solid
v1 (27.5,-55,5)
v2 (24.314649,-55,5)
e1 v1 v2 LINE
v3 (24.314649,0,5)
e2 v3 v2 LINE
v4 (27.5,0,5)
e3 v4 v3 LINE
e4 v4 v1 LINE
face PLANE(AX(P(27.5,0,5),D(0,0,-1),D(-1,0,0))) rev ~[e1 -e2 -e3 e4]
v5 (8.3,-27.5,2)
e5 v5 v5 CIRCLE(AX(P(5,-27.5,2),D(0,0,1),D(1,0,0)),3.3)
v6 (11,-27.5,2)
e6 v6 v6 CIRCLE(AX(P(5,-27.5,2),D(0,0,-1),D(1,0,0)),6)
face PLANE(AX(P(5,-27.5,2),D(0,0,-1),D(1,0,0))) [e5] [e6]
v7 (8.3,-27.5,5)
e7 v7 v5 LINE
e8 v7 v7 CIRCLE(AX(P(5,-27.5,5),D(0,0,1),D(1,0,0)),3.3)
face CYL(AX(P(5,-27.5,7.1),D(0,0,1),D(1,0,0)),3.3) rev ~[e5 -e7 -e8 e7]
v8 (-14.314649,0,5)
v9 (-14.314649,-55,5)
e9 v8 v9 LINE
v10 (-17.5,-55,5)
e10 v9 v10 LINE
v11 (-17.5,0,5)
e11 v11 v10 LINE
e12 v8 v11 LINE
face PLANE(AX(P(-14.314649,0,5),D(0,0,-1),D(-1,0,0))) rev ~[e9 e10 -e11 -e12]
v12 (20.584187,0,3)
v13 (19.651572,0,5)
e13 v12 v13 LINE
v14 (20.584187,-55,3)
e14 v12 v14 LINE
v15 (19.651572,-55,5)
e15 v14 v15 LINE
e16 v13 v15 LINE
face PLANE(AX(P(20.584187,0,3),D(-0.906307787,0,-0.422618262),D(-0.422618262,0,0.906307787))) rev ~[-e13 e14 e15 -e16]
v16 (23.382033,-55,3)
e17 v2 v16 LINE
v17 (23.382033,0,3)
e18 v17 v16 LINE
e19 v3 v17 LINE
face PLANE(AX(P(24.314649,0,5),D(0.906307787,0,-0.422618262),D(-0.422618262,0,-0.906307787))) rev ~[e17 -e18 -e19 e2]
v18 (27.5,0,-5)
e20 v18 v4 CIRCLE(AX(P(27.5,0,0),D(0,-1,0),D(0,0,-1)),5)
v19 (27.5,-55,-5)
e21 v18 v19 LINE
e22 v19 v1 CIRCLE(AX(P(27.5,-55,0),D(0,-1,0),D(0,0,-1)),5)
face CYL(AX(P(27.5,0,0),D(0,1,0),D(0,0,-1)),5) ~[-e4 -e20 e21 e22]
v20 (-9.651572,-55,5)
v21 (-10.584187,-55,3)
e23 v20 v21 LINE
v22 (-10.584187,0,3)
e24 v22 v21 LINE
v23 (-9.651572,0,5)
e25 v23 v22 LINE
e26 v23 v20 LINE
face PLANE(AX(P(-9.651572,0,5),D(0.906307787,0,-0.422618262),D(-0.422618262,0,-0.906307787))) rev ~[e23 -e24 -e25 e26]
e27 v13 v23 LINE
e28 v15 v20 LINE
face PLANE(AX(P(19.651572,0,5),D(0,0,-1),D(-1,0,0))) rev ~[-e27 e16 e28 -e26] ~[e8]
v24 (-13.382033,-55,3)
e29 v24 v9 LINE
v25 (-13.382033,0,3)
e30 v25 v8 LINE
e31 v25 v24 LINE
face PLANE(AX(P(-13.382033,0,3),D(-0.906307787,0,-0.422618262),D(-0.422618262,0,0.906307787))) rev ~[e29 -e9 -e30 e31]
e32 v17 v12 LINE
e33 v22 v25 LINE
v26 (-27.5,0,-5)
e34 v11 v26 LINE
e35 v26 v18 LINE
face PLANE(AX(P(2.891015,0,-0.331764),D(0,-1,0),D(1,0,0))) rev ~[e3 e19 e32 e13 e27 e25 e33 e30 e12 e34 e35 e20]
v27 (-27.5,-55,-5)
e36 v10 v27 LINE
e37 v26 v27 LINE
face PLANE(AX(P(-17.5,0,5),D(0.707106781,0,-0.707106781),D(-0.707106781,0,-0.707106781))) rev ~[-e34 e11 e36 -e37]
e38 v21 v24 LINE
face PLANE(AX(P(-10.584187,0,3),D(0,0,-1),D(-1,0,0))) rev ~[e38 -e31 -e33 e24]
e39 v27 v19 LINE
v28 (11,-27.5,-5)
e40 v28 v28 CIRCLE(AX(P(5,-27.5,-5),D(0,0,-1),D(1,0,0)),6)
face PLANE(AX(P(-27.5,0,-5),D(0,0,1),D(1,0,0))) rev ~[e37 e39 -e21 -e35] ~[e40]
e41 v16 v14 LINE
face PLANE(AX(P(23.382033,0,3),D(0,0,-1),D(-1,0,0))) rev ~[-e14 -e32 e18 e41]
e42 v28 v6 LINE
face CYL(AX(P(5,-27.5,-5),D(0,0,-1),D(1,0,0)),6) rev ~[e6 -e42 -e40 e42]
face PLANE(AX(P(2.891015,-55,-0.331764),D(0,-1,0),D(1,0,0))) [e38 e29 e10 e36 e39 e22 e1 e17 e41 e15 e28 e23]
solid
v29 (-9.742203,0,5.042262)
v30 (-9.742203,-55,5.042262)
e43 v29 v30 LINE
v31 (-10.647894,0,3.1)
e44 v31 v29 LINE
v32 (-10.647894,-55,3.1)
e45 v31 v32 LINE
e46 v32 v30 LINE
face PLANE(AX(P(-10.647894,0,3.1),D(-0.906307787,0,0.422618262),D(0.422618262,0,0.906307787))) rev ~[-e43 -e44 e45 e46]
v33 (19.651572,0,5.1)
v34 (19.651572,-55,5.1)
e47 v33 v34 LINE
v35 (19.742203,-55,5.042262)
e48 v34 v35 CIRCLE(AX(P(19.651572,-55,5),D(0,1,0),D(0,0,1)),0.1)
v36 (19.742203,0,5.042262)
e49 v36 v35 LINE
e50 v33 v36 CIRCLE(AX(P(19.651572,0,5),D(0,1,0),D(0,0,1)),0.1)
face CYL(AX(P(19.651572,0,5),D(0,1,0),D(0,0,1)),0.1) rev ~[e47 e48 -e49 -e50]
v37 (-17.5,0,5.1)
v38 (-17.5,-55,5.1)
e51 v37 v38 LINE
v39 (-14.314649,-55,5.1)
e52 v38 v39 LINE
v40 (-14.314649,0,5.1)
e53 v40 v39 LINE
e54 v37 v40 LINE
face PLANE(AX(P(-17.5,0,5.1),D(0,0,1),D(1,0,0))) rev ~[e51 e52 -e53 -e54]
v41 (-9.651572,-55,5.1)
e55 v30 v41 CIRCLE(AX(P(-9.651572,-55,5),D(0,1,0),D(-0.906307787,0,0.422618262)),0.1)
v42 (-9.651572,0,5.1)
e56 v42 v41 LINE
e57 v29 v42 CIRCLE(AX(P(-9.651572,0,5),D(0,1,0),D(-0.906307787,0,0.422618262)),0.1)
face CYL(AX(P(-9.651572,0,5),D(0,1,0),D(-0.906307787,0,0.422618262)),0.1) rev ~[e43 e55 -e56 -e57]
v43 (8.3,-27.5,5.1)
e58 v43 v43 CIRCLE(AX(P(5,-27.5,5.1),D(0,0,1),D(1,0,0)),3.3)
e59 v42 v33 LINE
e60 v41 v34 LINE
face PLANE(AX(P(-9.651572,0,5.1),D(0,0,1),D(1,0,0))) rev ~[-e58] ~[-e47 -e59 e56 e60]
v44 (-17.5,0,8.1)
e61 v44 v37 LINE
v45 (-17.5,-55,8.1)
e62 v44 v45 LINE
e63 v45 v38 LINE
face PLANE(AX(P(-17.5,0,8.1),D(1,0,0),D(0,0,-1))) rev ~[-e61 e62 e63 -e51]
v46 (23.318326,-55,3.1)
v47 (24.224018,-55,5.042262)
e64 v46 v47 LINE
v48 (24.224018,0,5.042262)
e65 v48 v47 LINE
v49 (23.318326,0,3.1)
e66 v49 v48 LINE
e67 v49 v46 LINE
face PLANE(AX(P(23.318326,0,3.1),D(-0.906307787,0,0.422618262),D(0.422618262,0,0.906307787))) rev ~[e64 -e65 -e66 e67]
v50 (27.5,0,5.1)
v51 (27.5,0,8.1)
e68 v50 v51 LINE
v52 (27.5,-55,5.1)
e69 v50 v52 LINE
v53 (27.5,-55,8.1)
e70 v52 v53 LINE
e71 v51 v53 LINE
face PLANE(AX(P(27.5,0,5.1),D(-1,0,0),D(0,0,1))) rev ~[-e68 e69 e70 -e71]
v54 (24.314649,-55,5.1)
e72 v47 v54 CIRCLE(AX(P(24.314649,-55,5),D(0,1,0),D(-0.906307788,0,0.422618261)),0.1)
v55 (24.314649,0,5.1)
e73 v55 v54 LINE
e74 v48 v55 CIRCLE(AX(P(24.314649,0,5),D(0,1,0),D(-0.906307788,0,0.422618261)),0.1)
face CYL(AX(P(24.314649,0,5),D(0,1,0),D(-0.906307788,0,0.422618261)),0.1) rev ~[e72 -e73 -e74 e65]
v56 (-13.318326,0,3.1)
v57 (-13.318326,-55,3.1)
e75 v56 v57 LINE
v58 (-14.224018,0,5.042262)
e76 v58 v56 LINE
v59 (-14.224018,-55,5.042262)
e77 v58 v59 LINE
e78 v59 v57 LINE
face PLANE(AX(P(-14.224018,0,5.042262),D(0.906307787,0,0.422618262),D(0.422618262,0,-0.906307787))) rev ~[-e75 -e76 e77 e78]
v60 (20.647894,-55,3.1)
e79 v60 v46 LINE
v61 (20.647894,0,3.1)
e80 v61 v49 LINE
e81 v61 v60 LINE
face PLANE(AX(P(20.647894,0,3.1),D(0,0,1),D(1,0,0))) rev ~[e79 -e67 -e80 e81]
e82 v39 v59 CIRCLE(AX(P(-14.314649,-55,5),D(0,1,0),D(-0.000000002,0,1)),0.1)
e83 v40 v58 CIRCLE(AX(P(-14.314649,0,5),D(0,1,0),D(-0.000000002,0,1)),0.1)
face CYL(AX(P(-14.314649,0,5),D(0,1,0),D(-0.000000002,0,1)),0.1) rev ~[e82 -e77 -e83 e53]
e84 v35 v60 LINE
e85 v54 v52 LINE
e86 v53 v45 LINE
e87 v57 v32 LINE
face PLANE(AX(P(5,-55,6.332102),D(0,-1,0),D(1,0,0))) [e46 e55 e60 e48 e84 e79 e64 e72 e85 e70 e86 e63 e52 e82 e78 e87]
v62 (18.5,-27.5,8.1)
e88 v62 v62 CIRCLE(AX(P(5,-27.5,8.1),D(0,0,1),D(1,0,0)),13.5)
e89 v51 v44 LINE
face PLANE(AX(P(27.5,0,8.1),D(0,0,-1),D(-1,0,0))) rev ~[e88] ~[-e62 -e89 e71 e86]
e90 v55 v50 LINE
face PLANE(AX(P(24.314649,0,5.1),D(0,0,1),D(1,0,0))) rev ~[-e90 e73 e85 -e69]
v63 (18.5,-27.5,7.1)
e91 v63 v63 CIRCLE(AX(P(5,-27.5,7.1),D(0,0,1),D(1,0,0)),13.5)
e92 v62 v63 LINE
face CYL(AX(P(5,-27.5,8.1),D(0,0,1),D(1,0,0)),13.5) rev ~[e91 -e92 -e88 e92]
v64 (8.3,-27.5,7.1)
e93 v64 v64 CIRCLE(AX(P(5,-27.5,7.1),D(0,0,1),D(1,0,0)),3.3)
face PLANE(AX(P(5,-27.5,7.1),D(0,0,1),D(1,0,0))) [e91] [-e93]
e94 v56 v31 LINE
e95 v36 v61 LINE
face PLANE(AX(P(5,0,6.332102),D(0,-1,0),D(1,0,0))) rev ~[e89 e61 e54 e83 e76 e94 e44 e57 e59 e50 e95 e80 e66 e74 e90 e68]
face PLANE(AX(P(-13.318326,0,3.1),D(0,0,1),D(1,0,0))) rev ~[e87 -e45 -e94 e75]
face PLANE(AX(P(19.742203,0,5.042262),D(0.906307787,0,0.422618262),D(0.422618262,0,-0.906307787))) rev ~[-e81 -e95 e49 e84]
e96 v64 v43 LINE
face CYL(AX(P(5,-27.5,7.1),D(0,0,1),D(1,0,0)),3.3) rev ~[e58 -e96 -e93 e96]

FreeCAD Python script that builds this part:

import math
import FreeCAD as App
import Part
import Sketcher
Q = App.Units.Quantity

doc = App.newDocument("Part")
body = doc.addObject("PartDesign::Body", "Body")

# Sketch on XZ plane
sketch1 = body.newObject("Sketcher::SketchObject", "Sketch")
sketch1.AttachmentSupport = (doc.getObject("XZ_Plane"), [""])
sketch1.MapMode = "FlatFace"
sketch1.addGeometry([
    Part.LineSegment(App.Vector(-27.5, -5, 0), App.Vector(27.5, -5, 0)),  # 0
    Part.ArcOfCircle(Part.Circle(App.Vector(27.5, 0, 0), App.Vector(0, 0, 1), 5), math.radians(-90), math.radians(90)),  # 1
    Part.LineSegment(App.Vector(27.5, 5, 0), App.Vector(24.3, 5, 0)),  # 2
    Part.LineSegment(App.Vector(24.3, 5, 0), App.Vector(23.4, 3, 0)),  # 3
    Part.LineSegment(App.Vector(23.4, 3, 0), App.Vector(20.6, 3, 0)),  # 4
    Part.LineSegment(App.Vector(20.6, 3, 0), App.Vector(19.7, 5, 0)),  # 5
    Part.LineSegment(App.Vector(19.7, 5, 0), App.Vector(-9.7, 5, 0)),  # 6
    Part.LineSegment(App.Vector(-9.7, 5, 0), App.Vector(-10.6, 3, 0)),  # 7
    Part.LineSegment(App.Vector(-10.6, 3, 0), App.Vector(-13.4, 3, 0)),  # 8
    Part.LineSegment(App.Vector(-13.4, 3, 0), App.Vector(-14.3, 5, 0)),  # 9
    Part.LineSegment(App.Vector(-14.3, 5, 0), App.Vector(-17.5, 5, 0)),  # 10
    Part.LineSegment(App.Vector(-17.5, 5, 0), App.Vector(-27.5, -5, 0)),  # 11
], False)
sketch1.addConstraint([
    Sketcher.Constraint("Tangent", 0, 2, 1, 1),
    Sketcher.Constraint("Tangent", 1, 2, 2, 1),
    Sketcher.Constraint("Coincident", 2, 2, 3, 1),
    Sketcher.Constraint("Coincident", 3, 2, 4, 1),
    Sketcher.Constraint("Coincident", 4, 2, 5, 1),
    Sketcher.Constraint("Coincident", 5, 2, 6, 1),
    Sketcher.Constraint("Coincident", 6, 2, 7, 1),
    Sketcher.Constraint("Coincident", 7, 2, 8, 1),
    Sketcher.Constraint("Coincident", 8, 2, 9, 1),
    Sketcher.Constraint("Coincident", 9, 2, 10, 1),
    Sketcher.Constraint("Coincident", 10, 2, 11, 1),
    Sketcher.Constraint("Coincident", 11, 2, 0, 1),
    Sketcher.Constraint("Horizontal", 0),
    Sketcher.Constraint("Horizontal", 2),
    Sketcher.Constraint("Horizontal", 4),
    Sketcher.Constraint("Horizontal", 6),
    Sketcher.Constraint("Horizontal", 8),
    Sketcher.Constraint("Horizontal", 10),
    Sketcher.Constraint("Symmetric", 1, 2, 11, 2, -1, 1),
    Sketcher.Constraint("Parallel", 3, 7),
    Sketcher.Constraint("Parallel", 5, 9),
    Sketcher.Constraint("Horizontal", 2, 2, 5, 2),
    Sketcher.Constraint("Horizontal", 4, 2, 7, 2),
    Sketcher.Constraint("Horizontal", 6, 2, 9, 2),
    Sketcher.Constraint("Equal", 4, 8),
    Sketcher.Constraint("Equal", 2, 10),
    Sketcher.Constraint("Equal", 3, 5),
    Sketcher.Constraint("Radius", 1, Q("5 mm")),
    Sketcher.Constraint("DistanceX", 0, 1, 0, 2, Q("55 mm")),
    Sketcher.Constraint("Angle", 3, Q("-115 deg")),
    Sketcher.Constraint("Angle", 11, Q("-135 deg")),
    Sketcher.Constraint("DistanceY", -1, 1, 3, 2, Q("3 mm")),
    Sketcher.Constraint("DistanceX", 2, 2, 2, 1, Q("3.185351 mm")),
    Sketcher.Constraint("DistanceX", 4, 2, 4, 1, Q("2.797846 mm")),
])
pad1 = body.newObject("PartDesign::Pad", "Pad")
pad1.Profile = sketch1
pad1.Length = 55
body2 = doc.addObject("PartDesign::Body", "Body001")

# Sketch on XZ plane
sketch2 = body2.newObject("Sketcher::SketchObject", "Sketch001")
sketch2.AttachmentSupport = (doc.getObject("XZ_Plane001"), [""])
sketch2.MapMode = "FlatFace"
sketch2.addGeometry([
    Part.LineSegment(App.Vector(23.32, 3.1, 0), App.Vector(24.22, 5.04, 0)),  # 0
    Part.ArcOfCircle(Part.Circle(App.Vector(24.31, 5, 0), App.Vector(0, 0, 1), 0.1), math.radians(90), math.radians(155)),  # 1
    Part.LineSegment(App.Vector(24.31, 5.1, 0), App.Vector(27.5, 5.1, 0)),  # 2
    Part.LineSegment(App.Vector(27.5, 5.1, 0), App.Vector(27.5, 8.1, 0)),  # 3
    Part.LineSegment(App.Vector(27.5, 8.1, 0), App.Vector(-17.5, 8.1, 0)),  # 4
    Part.LineSegment(App.Vector(-17.5, 8.1, 0), App.Vector(-17.5, 5.1, 0)),  # 5
    Part.LineSegment(App.Vector(-17.5, 5.1, 0), App.Vector(-14.31, 5.1, 0)),  # 6
    Part.ArcOfCircle(Part.Circle(App.Vector(-14.31, 5, 0), App.Vector(0, 0, 1), 0.1), math.radians(25), math.radians(90)),  # 7
    Part.LineSegment(App.Vector(-14.22, 5.04, 0), App.Vector(-13.32, 3.1, 0)),  # 8
    Part.LineSegment(App.Vector(-13.32, 3.1, 0), App.Vector(-10.65, 3.1, 0)),  # 9
    Part.LineSegment(App.Vector(-10.65, 3.1, 0), App.Vector(-9.74, 5.04, 0)),  # 10
    Part.ArcOfCircle(Part.Circle(App.Vector(-9.65, 5, 0), App.Vector(0, 0, 1), 0.1), math.radians(90), math.radians(155)),  # 11
    Part.LineSegment(App.Vector(-9.65, 5.1, 0), App.Vector(19.65, 5.1, 0)),  # 12
    Part.ArcOfCircle(Part.Circle(App.Vector(19.65, 5, 0), App.Vector(0, 0, 1), 0.1), math.radians(25), math.radians(90)),  # 13
    Part.LineSegment(App.Vector(19.74, 5.04, 0), App.Vector(20.65, 3.1, 0)),  # 14
    Part.LineSegment(App.Vector(20.65, 3.1, 0), App.Vector(23.32, 3.1, 0)),  # 15
], False)
sketch2.addConstraint([
    Sketcher.Constraint("Tangent", 0, 2, 1, 2),
    Sketcher.Constraint("Tangent", 1, 1, 2, 1),
    Sketcher.Constraint("Coincident", 2, 2, 3, 1),
    Sketcher.Constraint("Coincident", 3, 2, 4, 1),
    Sketcher.Constraint("Coincident", 4, 2, 5, 1),
    Sketcher.Constraint("Coincident", 5, 2, 6, 1),
    Sketcher.Constraint("Tangent", 6, 2, 7, 2),
    Sketcher.Constraint("Tangent", 7, 1, 8, 1),
    Sketcher.Constraint("Coincident", 8, 2, 9, 1),
    Sketcher.Constraint("Coincident", 9, 2, 10, 1),
    Sketcher.Constraint("Tangent", 10, 2, 11, 2),
    Sketcher.Constraint("Tangent", 11, 1, 12, 1),
    Sketcher.Constraint("Tangent", 12, 2, 13, 2),
    Sketcher.Constraint("Tangent", 13, 1, 14, 1),
    Sketcher.Constraint("Coincident", 14, 2, 15, 1),
    Sketcher.Constraint("Coincident", 15, 2, 0, 1),
    Sketcher.Constraint("Horizontal", 2),
    Sketcher.Constraint("Vertical", 3),
    Sketcher.Constraint("Horizontal", 4),
    Sketcher.Constraint("Vertical", 5),
    Sketcher.Constraint("Horizontal", 6),
    Sketcher.Constraint("Horizontal", 9),
    Sketcher.Constraint("Horizontal", 12),
    Sketcher.Constraint("Horizontal", 15),
    Sketcher.Constraint("Equal", 1, 7),
    Sketcher.Constraint("Equal", 7, 11),
    Sketcher.Constraint("Equal", 11, 13),
    Sketcher.Constraint("Parallel", 0, 10),
    Sketcher.Constraint("Parallel", 8, 14),
    Sketcher.Constraint("Horizontal", 1, 3, 7, 3),
    Sketcher.Constraint("Horizontal", 7, 3, 11, 3),
    Sketcher.Constraint("Horizontal", 0, 2, 7, 1),
    Sketcher.Constraint("Horizontal", 9, 2, 14, 2),
    Sketcher.Constraint("Equal", 2, 6),
    Sketcher.Constraint("Equal", 9, 15),
    Sketcher.Constraint("Radius", 1, Q("0.1 mm")),
    Sketcher.Constraint("DistanceX", 4, 2, 4, 1, Q("45 mm")),
    Sketcher.Constraint("DistanceY", 3, 1, 3, 2, Q("3 mm")),
    Sketcher.Constraint("Angle", 0, Q("65 deg")),
    Sketcher.Constraint("DistanceY", -1, 1, 1, 3, Q("5 mm")),
    Sketcher.Constraint("DistanceY", 8, 2, 6, 2, Q("2 mm")),
    Sketcher.Constraint("DistanceX", -1, 1, 2, 2, Q("27.5 mm")),
    Sketcher.Constraint("DistanceX", 2, 1, 2, 2, Q("3.185351 mm")),
    Sketcher.Constraint("DistanceX", 9, 1, 9, 2, Q("2.670432 mm")),
])
pad2 = body2.newObject("PartDesign::Pad", "Pad001")
pad2.Profile = sketch2
pad2.Length = 55

# Sketch on XY plane
sketch3 = body2.newObject("Sketcher::SketchObject", "Sketch002")
sketch3.AttachmentSupport = (doc.getObject("XY_Plane001"), [""])
sketch3.MapMode = "FlatFace"
sketch3.AttachmentOffset = App.Placement(App.Vector(0, 0, 8.1), App.Rotation())
sketch3.addGeometry(Part.Circle(App.Vector(5, -28, 0), App.Vector(0, 0, 1), 14), False)
sketch3.addConstraint([
    Sketcher.Constraint("Diameter", 0, Q("27 mm")),
    Sketcher.Constraint("DistanceX", -1, 1, 0, 3, Q("5 mm")),
    Sketcher.Constraint("DistanceY", 0, 3, -1, 1, Q("27.5 mm")),
])
pocket1 = body2.newObject("PartDesign::Pocket", "Pocket")
pocket1.Profile = sketch3
pocket1.Length = 1
body3 = doc.addObject("PartDesign::Body", "Body002")

# Sketch on XY plane
sketch4 = body3.newObject("Sketcher::SketchObject", "Sketch003")
sketch4.AttachmentSupport = (doc.getObject("XY_Plane002"), [""])
sketch4.MapMode = "FlatFace"
sketch4.AttachmentOffset = App.Placement(App.Vector(0, 0, 7.1), App.Rotation())
sketch4.addGeometry(Part.Circle(App.Vector(5, -27.5, 0), App.Vector(0, 0, 1), 3.3), False)
sketch4.addConstraint([
    Sketcher.Constraint("Diameter", 0, Q("6.6 mm")),
    Sketcher.Constraint("DistanceX", -1, 1, 0, 3, Q("5 mm")),
    Sketcher.Constraint("DistanceY", 0, 3, -1, 1, Q("27.5 mm")),
])
pad3 = body3.newObject("PartDesign::Pad", "Pad002")
pad3.Profile = sketch4
pad3.Length = 12.101
pad3.Reversed = True
doc.recompute()

body4 = doc.addObject("PartDesign::Body", "Body003")
body4.BaseFeature = body3
boolean = body.newObject("PartDesign::Boolean", "Boolean")
boolean.Type = "Cut"
boolean.addObjects([body4])
doc.recompute()

# Sketch on XY plane
sketch5 = body.newObject("Sketcher::SketchObject", "Sketch004")
sketch5.AttachmentSupport = (doc.getObject("XY_Plane"), [""])
sketch5.MapMode = "FlatFace"
sketch5.AttachmentOffset = App.Placement(App.Vector(0, 0, 5), App.Rotation())
sketch5.addGeometry(Part.Circle(App.Vector(5, -27.5, 0), App.Vector(0, 0, 1), 3.3), False)
sketch5.addConstraint([
    Sketcher.Constraint("Diameter", 0, Q("6.6 mm")),
    Sketcher.Constraint("DistanceX", -1, 1, 0, 3, Q("5 mm")),
    Sketcher.Constraint("DistanceY", 0, 3, -1, 1, Q("27.5 mm")),
])
pocket2 = body.newObject("PartDesign::Pocket", "Pocket001")
pocket2.Profile = sketch5
pocket2.Length = 25

# Sketch on XY plane
sketch6 = body.newObject("Sketcher::SketchObject", "Sketch005")
sketch6.AttachmentSupport = (doc.getObject("XY_Plane"), [""])
sketch6.MapMode = "FlatFace"
sketch6.AttachmentOffset = App.Placement(App.Vector(0, 0, -5), App.Rotation())
sketch6.addGeometry(Part.Circle(App.Vector(5, -28, 0), App.Vector(0, 0, 1), 6), False)
sketch6.addConstraint([
    Sketcher.Constraint("Diameter", 0, Q("12 mm")),
    Sketcher.Constraint("DistanceX", -1, 1, 0, 3, Q("5 mm")),
    Sketcher.Constraint("DistanceY", 0, 3, -1, 1, Q("27.5 mm")),
])
pocket3 = body.newObject("PartDesign::Pocket", "Pocket002")
pocket3.Profile = sketch6
pocket3.Length = 7
pocket3.Reversed = True
doc.recompute()

boolean2 = body2.newObject("PartDesign::Boolean", "Boolean001")
boolean2.Type = "Cut"
boolean2.addObjects([body3])

doc.recompute()
